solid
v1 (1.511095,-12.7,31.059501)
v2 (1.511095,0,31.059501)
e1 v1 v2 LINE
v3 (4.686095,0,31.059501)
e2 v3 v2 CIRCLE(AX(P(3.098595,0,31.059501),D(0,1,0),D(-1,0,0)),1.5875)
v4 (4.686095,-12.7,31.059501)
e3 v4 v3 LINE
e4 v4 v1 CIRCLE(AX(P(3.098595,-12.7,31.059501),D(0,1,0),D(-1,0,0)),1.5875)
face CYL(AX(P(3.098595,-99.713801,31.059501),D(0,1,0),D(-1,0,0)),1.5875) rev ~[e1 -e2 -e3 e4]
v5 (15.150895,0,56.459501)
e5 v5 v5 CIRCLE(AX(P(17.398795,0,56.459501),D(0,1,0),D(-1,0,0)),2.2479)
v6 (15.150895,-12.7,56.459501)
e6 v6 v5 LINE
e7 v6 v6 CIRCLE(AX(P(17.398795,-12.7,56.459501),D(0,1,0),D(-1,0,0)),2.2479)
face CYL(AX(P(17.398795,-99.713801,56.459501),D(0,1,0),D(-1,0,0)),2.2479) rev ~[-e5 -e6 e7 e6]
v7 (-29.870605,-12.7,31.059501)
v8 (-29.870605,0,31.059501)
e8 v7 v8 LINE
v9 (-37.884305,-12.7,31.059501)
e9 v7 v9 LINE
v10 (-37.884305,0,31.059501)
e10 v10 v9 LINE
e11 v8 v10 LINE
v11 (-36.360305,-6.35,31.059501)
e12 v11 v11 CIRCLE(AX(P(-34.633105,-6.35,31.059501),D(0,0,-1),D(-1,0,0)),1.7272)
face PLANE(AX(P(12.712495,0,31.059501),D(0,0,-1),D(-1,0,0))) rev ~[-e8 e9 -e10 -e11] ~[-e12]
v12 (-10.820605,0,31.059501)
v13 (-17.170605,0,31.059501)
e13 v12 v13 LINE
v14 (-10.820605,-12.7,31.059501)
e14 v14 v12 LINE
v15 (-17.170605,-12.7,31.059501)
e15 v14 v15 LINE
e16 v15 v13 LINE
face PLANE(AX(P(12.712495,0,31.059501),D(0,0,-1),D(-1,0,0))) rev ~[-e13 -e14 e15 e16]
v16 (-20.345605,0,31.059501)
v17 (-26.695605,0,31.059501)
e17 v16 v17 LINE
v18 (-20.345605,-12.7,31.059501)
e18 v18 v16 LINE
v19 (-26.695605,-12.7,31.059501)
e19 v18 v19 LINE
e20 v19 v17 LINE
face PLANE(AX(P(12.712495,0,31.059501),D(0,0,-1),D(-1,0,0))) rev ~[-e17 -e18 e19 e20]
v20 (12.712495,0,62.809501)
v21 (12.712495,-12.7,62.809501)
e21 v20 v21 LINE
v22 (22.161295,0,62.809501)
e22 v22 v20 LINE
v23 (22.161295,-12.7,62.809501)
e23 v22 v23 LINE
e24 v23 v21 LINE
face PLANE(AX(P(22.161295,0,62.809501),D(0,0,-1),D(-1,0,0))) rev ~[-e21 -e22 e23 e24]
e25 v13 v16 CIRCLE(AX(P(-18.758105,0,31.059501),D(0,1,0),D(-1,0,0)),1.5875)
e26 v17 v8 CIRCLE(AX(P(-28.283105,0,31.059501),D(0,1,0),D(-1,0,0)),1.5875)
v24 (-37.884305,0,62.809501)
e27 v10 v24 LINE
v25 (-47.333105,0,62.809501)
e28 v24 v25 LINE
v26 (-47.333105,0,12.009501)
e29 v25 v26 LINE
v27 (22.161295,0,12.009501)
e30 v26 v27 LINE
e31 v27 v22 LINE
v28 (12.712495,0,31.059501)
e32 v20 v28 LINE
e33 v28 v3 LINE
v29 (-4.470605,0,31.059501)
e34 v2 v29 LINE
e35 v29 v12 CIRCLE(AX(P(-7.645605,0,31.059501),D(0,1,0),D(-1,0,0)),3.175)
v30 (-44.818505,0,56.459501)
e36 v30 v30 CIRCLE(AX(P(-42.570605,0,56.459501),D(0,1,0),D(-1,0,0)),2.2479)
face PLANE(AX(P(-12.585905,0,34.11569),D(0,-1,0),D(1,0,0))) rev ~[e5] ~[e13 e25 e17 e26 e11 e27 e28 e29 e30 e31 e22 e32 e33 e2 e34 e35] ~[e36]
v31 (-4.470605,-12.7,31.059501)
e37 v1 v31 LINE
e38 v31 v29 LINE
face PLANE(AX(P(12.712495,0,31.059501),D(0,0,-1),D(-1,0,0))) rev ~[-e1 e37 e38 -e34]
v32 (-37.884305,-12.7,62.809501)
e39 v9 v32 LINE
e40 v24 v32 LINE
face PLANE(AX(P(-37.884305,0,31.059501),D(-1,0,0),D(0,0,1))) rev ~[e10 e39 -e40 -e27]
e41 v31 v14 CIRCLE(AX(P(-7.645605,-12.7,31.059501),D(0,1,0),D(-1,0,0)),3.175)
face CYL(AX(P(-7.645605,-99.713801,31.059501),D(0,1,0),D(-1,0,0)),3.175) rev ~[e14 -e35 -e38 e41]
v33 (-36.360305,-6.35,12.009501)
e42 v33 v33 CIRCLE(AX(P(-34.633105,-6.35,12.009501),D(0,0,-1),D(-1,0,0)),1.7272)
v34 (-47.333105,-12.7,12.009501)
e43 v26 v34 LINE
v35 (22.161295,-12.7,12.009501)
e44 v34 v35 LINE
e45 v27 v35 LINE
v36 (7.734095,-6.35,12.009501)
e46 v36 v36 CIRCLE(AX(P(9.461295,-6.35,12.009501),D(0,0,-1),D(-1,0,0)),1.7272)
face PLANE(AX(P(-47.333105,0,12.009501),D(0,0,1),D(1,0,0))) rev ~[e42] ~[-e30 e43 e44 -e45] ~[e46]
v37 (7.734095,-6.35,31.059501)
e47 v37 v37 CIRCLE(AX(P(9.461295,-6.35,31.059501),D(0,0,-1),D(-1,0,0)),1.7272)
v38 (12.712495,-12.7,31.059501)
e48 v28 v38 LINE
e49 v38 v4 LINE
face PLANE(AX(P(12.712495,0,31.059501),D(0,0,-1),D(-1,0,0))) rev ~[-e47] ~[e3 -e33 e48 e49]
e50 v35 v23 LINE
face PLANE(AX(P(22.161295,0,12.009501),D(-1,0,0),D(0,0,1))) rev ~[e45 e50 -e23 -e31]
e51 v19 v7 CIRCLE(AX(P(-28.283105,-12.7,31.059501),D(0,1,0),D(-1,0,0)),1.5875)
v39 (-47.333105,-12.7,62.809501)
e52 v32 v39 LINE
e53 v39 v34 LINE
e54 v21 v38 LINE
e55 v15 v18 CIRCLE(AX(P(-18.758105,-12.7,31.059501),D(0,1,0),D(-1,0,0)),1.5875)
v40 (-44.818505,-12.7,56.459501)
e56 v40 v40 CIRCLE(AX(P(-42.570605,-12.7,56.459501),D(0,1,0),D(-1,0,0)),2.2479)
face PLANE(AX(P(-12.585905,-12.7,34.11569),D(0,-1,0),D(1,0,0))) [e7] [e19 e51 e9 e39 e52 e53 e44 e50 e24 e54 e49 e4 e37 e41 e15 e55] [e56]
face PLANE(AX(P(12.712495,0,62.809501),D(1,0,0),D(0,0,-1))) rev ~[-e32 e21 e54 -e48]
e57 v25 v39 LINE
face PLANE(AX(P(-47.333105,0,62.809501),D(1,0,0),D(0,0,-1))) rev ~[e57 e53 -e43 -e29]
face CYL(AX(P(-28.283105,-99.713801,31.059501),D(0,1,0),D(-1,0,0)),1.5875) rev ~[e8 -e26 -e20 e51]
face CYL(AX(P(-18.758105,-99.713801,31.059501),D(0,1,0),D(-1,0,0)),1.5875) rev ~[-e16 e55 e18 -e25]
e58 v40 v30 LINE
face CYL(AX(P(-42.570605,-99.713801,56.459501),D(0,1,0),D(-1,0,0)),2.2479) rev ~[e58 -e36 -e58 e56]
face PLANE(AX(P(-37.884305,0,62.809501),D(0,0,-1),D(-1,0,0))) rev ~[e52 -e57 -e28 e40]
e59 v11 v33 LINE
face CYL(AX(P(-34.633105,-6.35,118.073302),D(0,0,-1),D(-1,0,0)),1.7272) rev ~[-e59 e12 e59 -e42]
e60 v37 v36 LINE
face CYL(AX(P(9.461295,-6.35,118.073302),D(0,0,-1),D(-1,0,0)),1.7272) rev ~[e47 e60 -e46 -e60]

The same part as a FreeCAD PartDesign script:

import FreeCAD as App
import Part
import Sketcher
Q = App.Units.Quantity


def add_polygon(sketch, points):
    """Adds a closed chain of lines whose ends are joined by coincident constraints."""
    first, n = sketch.GeometryCount, len(points)
    for a, b in zip(points, points[1:] + points[:1]):
        sketch.addGeometry(Part.LineSegment(App.Vector(*a, 0), App.Vector(*b, 0)), False)
    for i in range(n):
        sketch.addConstraint(Sketcher.Constraint("Coincident", first + i, 2, first + (i + 1) % n, 1))

doc = App.newDocument("Part")
body = doc.addObject("PartDesign::Body", "Body")

sketch1 = body.newObject("Sketcher::SketchObject", "Sketch")
sketch1.AttachmentSupport = (doc.getObject("XZ_Plane"), [""])
sketch1.MapMode = "FlatFace"
add_polygon(sketch1, [(-37.884305, 62.809501), (-47.333105, 62.809501), (-47.333105, 12.009501), (22.161295, 12.009501), (22.161295, 62.809501), (12.712495, 62.809501), (12.712495, 31.059501), (-37.884305, 31.059501)])
sketch1.addConstraint([
    Sketcher.Constraint("Horizontal", 0),
    Sketcher.Constraint("Vertical", 1),
    Sketcher.Constraint("Horizontal", 2),
    Sketcher.Constraint("Vertical", 3),
    Sketcher.Constraint("Horizontal", 4),
    Sketcher.Constraint("Vertical", 5),
    Sketcher.Constraint("Horizontal", 6),
    Sketcher.Constraint("Vertical", 7),
    Sketcher.Constraint("Horizontal", 0, 2, 3, 2),
    Sketcher.Constraint("Equal", 0, 4),
    Sketcher.Constraint("DistanceY", 1, 2, 1, 1, Q("2 in")),
    Sketcher.Constraint("DistanceY", 5, 2, 5, 1, Q("1.25 in")),
    Sketcher.Constraint("DistanceX", 0, 2, 0, 1, Q("0.372 in")),
    Sketcher.Constraint("DistanceX", 2, 1, 2, 2, Q("2.736 in")),
    Sketcher.Constraint("DistanceY", -1, 1, 0, 2, 62.809501),
    Sketcher.Constraint("DistanceX", 0, 2, -1, 1, 47.333105),
])
pad1 = body.newObject("PartDesign::Pad", "Pad")
pad1.Profile = sketch1
pad1.Length = Q("0.5 in")

sketch2 = body.newObject("Sketcher::SketchObject", "Sketch001")
sketch2.AttachmentSupport = (doc.getObject("XZ_Plane"), [""])
sketch2.MapMode = "FlatFace"
sketch2.AttachmentOffset = App.Placement(App.Vector(0, 0, 0.5 * 25.4), App.Rotation())
sketch2.addGeometry([
    Part.Circle(App.Vector(-28.283105, 31.059501, 0), App.Vector(0, 0, 1), 1.5875),
    Part.Circle(App.Vector(-18.758105, 31.059501, 0), App.Vector(0, 0, 1), 1.5875),
    Part.Circle(App.Vector(3.098595, 31.059501, 0), App.Vector(0, 0, 1), 1.5875),
], False)
sketch2.addConstraint([
    Sketcher.Constraint("Equal", 0, 1),
    Sketcher.Constraint("Equal", 1, 2),
    Sketcher.Constraint("Horizontal", 0, 3, 1, 3),
    Sketcher.Constraint("Horizontal", 1, 3, 2, 3),
    Sketcher.Constraint("Diameter", 0, Q("0.125 in")),
    Sketcher.Constraint("DistanceX", 0, 3, 1, 3, Q("0.375 in")),
    Sketcher.Constraint("DistanceX", 1, 3, 2, 3, Q("0.8605 in")),
    Sketcher.Constraint("DistanceY", -1, 1, 0, 3, 31.059501),
    Sketcher.Constraint("DistanceX", 0, 3, -1, 1, 28.283105),
])
doc.recompute()
hole = body.newObject("PartDesign::Hole", "Hole")
hole.Profile = sketch2
hole.ThreadType = "None"
hole.Diameter = Q("0.125 in")
hole.DepthType = "ThroughAll"

sketch3 = body.newObject("Sketcher::SketchObject", "Sketch002")
sketch3.AttachmentSupport = (doc.getObject("XZ_Plane"), [""])
sketch3.MapMode = "FlatFace"
sketch3.AttachmentOffset = App.Placement(App.Vector(0, 0, 0.5 * 25.4), App.Rotation())
sketch3.addGeometry(Part.Circle(App.Vector(-7.645605, 31.059501, 0), App.Vector(0, 0, 1), 3.175), False)
sketch3.addConstraint([
    Sketcher.Constraint("Diameter", 0, Q("0.25 in")),
    Sketcher.Constraint("DistanceY", -1, 1, 0, 3, 31.059501),
    Sketcher.Constraint("DistanceX", 0, 3, -1, 1, 7.645605),
])
doc.recompute()
hole2 = body.newObject("PartDesign::Hole", "Hole001")
hole2.Profile = sketch3
hole2.ThreadType = "None"
hole2.Diameter = Q("0.25 in")
hole2.DepthType = "ThroughAll"

sketch4 = body.newObject("Sketcher::SketchObject", "Sketch003")
sketch4.AttachmentSupport = (doc.getObject("XZ_Plane"), [""])
sketch4.MapMode = "FlatFace"
sketch4.AttachmentOffset = App.Placement(App.Vector(0, 0, 0.5 * 25.4), App.Rotation())
sketch4.addGeometry([
    Part.Circle(App.Vector(-42.570605, 56.459501, 0), App.Vector(0, 0, 1), 2.2479),
    Part.Circle(App.Vector(17.398795, 56.459501, 0), App.Vector(0, 0, 1), 2.2479),
], False)
sketch4.addConstraint([
    Sketcher.Constraint("Equal", 0, 1),
    Sketcher.Constraint("Horizontal", 0, 3, 1, 3),
    Sketcher.Constraint("Diameter", 0, Q("0.177 in")),
    Sketcher.Constraint("DistanceX", 0, 3, 1, 3, Q("2.361 in")),
    Sketcher.Constraint("DistanceY", -1, 1, 0, 3, 56.459501),
    Sketcher.Constraint("DistanceX", 0, 3, -1, 1, 42.570605),
])
doc.recompute()
hole3 = body.newObject("PartDesign::Hole", "Hole002")
hole3.Profile = sketch4
hole3.ThreadType = "None"
hole3.Diameter = Q("0.177 in")
hole3.DepthType = "ThroughAll"

sketch5 = body.newObject("Sketcher::SketchObject", "Sketch004")
sketch5.AttachmentSupport = (doc.getObject("XY_Plane"), [""])
sketch5.MapMode = "FlatFace"
sketch5.AttachmentOffset = App.Placement(App.Vector(0, 0, 31.059501), App.Rotation())
sketch5.addGeometry(Part.Circle(App.Vector(-34.633105, -6.35, 0), App.Vector(0, 0, 1), 1.7272), False)
sketch5.addConstraint([
    Sketcher.Constraint("Diameter", 0, Q("0.136 in")),
    Sketcher.Constraint("DistanceY", 0, 3, -1, 1, Q("0.25 in")),
    Sketcher.Constraint("DistanceX", 0, 3, -1, 1, 34.633105),
])
doc.recompute()
hole4 = body.newObject("PartDesign::Hole", "Hole003")
hole4.Profile = sketch5
hole4.ThreadType = "None"
hole4.Diameter = Q("0.136 in")
hole4.DepthType = "ThroughAll"

sketch6 = body.newObject("Sketcher::SketchObject", "Sketch005")
sketch6.AttachmentSupport = (doc.getObject("XY_Plane"), [""])
sketch6.MapMode = "FlatFace"
sketch6.AttachmentOffset = App.Placement(App.Vector(0, 0, 31.059501), App.Rotation())
sketch6.addGeometry(Part.Circle(App.Vector(9.461295, -6.35, 0), App.Vector(0, 0, 1), 1.7272), False)
sketch6.addConstraint([
    Sketcher.Constraint("Diameter", 0, Q("0.136 in")),
    Sketcher.Constraint("DistanceY", 0, 3, -1, 1, Q("0.25 in")),
    Sketcher.Constraint("DistanceX", -1, 1, 0, 3, 9.461295),
])
doc.recompute()
hole5 = body.newObject("PartDesign::Hole", "Hole004")
hole5.Profile = sketch6
hole5.ThreadType = "None"
hole5.Diameter = Q("0.136 in")
hole5.DepthType = "ThroughAll"

doc.recompute()
